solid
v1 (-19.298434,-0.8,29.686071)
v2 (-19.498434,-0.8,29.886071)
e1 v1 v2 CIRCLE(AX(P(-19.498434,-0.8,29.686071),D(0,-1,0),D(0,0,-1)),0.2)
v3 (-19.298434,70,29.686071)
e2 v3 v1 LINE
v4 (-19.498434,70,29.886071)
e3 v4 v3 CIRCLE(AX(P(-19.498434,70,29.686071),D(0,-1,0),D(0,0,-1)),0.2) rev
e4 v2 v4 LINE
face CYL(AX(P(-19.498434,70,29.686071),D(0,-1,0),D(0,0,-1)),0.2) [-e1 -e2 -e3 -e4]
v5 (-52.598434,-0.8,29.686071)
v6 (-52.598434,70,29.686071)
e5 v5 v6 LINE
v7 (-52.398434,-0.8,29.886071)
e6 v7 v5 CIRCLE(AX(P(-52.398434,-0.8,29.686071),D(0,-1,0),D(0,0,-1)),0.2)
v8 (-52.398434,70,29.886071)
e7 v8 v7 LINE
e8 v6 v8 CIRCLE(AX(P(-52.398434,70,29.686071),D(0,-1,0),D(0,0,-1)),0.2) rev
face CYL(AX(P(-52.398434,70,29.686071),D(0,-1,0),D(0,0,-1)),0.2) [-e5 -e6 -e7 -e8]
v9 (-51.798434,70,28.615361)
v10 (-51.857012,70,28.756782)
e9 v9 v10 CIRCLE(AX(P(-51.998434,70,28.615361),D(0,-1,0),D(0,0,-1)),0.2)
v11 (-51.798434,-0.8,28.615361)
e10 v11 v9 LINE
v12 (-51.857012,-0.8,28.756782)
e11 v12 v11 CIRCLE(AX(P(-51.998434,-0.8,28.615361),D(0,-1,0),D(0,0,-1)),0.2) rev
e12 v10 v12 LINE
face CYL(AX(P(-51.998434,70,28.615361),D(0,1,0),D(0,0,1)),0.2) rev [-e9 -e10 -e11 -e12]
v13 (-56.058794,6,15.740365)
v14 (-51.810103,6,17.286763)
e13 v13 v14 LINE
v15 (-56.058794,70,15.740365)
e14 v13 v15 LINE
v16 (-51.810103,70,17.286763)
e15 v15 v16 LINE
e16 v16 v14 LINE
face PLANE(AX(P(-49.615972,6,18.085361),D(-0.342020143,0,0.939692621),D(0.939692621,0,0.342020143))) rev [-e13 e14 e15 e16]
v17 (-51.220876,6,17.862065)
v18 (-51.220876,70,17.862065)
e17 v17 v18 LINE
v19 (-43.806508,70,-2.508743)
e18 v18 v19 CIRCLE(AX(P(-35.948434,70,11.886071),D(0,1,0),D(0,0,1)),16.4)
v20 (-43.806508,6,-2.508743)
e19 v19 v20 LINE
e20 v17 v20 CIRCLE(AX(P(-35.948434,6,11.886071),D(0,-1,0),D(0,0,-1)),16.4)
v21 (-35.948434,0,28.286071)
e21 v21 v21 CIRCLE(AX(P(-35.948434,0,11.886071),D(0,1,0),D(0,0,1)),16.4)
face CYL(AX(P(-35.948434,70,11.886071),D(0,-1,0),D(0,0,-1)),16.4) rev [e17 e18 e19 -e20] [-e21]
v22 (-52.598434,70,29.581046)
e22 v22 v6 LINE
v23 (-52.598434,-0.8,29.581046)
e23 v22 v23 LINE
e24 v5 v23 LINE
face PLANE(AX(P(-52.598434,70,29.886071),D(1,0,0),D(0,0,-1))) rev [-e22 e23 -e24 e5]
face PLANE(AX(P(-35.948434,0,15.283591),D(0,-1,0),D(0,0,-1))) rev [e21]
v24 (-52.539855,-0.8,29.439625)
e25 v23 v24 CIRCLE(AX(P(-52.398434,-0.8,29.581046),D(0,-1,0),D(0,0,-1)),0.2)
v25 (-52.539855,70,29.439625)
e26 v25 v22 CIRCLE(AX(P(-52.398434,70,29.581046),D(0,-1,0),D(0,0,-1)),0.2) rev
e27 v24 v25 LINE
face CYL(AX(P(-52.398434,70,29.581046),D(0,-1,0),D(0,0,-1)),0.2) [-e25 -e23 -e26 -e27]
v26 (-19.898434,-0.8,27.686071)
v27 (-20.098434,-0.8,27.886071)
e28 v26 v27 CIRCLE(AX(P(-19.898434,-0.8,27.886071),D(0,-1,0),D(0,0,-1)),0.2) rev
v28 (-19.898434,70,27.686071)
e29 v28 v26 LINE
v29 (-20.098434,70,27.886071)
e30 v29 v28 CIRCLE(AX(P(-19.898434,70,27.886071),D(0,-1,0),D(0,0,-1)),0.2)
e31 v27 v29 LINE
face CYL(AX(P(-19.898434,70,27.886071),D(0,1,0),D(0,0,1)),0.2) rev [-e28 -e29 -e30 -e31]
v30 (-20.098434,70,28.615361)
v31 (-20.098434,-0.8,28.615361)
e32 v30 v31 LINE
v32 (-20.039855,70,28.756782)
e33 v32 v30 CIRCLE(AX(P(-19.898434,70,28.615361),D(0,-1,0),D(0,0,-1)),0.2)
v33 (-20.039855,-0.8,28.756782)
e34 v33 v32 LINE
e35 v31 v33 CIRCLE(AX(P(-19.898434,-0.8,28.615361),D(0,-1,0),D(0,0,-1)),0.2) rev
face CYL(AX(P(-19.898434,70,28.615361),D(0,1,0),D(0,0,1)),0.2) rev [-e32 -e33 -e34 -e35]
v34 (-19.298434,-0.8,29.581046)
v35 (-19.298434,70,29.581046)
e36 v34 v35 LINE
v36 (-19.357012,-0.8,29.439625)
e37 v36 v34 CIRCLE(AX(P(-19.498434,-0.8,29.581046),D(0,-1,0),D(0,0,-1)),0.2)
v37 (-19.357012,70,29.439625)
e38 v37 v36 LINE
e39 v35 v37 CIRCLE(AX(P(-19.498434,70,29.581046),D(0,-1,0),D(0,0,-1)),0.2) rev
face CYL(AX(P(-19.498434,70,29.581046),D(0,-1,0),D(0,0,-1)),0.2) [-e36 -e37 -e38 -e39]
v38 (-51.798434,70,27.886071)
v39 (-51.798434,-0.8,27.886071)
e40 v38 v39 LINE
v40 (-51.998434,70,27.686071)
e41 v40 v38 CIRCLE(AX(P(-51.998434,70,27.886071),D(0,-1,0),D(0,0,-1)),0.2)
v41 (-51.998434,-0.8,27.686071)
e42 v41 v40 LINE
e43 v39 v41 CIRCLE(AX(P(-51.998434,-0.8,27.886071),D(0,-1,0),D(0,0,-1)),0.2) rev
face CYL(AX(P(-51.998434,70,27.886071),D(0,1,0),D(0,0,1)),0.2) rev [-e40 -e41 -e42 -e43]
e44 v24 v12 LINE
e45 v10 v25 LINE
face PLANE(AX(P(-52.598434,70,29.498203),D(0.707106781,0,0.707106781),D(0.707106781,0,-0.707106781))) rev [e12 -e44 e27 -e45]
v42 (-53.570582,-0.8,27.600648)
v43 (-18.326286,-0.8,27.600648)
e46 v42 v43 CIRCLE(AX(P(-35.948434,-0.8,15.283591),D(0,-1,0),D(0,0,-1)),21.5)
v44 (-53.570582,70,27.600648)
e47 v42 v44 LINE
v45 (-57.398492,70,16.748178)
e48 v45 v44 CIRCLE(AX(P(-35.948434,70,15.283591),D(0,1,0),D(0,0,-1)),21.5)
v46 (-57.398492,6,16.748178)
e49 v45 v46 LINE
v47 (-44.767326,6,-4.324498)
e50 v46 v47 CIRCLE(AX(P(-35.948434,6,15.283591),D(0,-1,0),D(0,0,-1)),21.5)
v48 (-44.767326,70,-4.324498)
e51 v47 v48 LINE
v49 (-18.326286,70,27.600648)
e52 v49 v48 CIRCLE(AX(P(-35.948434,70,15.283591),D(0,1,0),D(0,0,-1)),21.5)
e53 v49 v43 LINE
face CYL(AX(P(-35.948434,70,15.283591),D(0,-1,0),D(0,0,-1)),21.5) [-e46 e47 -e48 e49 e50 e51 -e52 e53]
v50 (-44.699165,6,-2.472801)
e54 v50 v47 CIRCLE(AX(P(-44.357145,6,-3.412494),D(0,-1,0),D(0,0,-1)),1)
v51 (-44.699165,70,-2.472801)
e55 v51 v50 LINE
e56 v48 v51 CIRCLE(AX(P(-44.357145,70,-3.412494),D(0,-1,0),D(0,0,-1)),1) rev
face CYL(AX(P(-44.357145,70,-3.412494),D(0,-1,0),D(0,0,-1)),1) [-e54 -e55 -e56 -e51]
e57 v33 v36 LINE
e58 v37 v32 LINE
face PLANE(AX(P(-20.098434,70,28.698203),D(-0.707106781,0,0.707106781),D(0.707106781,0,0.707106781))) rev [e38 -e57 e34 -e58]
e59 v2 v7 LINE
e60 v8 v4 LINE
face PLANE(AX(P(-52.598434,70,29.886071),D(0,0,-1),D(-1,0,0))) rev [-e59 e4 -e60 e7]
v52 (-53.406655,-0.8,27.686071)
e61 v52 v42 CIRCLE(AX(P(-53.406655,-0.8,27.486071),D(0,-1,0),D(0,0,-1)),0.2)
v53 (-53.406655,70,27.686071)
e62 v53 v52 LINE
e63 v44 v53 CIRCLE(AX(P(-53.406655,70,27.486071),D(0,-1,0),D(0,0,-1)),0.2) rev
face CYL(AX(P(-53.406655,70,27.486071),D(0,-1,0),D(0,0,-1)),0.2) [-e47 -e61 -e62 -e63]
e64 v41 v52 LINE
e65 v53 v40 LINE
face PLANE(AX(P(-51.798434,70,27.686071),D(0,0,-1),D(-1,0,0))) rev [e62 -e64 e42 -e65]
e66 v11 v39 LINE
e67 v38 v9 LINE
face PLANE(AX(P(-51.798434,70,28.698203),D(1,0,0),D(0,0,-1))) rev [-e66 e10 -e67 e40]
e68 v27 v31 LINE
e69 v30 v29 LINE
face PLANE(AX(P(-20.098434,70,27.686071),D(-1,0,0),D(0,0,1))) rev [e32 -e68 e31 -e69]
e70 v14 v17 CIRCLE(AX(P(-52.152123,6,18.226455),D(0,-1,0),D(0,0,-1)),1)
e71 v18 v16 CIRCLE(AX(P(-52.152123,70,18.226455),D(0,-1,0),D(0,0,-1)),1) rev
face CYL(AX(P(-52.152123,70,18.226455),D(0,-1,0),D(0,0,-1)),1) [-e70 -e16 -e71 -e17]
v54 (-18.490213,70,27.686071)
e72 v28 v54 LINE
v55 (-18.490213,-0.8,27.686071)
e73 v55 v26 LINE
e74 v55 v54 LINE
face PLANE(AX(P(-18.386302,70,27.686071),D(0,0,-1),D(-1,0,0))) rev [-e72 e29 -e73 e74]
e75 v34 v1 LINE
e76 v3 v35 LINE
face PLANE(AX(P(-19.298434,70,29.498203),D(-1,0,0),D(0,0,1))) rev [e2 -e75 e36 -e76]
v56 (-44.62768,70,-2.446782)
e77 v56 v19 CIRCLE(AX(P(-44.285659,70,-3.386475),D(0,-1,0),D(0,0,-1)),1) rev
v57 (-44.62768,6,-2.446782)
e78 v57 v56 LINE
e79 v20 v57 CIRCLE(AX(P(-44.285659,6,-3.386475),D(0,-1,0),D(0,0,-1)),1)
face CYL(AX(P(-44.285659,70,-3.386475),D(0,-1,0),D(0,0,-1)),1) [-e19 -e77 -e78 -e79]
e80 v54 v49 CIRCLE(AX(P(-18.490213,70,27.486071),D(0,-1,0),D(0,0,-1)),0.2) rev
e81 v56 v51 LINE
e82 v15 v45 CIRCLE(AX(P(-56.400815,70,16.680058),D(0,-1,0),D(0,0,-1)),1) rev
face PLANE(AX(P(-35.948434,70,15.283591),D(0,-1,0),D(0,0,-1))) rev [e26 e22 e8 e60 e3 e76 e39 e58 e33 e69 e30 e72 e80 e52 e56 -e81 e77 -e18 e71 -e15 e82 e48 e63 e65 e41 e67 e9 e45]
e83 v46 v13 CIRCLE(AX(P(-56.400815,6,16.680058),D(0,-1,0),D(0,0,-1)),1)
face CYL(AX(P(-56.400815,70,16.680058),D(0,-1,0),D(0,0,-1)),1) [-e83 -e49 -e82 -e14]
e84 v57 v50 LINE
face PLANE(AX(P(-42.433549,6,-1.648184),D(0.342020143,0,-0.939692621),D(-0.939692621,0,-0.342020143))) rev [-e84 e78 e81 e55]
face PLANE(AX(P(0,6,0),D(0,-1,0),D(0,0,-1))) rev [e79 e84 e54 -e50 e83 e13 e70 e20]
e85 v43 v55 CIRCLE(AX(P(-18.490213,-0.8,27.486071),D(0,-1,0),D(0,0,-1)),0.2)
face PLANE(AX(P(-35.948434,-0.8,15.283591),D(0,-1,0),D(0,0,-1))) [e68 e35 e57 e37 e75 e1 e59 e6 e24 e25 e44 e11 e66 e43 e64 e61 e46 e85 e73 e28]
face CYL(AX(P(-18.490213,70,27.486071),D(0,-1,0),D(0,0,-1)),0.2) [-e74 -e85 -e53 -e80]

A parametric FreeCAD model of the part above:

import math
import FreeCAD as App
import Part
import Sketcher
from FreeCAD import Vector
Q = App.Units.Quantity


def edges_at(feature, points):
    """Names of the edges that pass closest to the given points."""
    edges = feature.Shape.Edges
    near = lambda p: min(range(len(edges)), key=lambda i: edges[i].distToShape(Part.Vertex(*p))[0])
    return sorted({f"Edge{near(p) + 1}" for p in points})


def add_polygon(sketch, points):
    """Adds a closed chain of lines whose ends are joined by coincident constraints."""
    first, n = sketch.GeometryCount, len(points)
    for a, b in zip(points, points[1:] + points[:1]):
        sketch.addGeometry(Part.LineSegment(App.Vector(*a, 0), App.Vector(*b, 0)), False)
    for i in range(n):
        sketch.addConstraint(Sketcher.Constraint("Coincident", first + i, 2, first + (i + 1) % n, 1))

doc = App.newDocument("Part")
body = doc.addObject("PartDesign::Body", "Body")

sketch1 = body.newObject("Sketcher::SketchObject", "Sketch")
sketch1.AttachmentSupport = (doc.getObject("XZ_Plane"), [""])
sketch1.MapMode = "FlatFace"
sketch1.addGeometry(Part.LineSegment(Vector(-20.1, 27.69, 0), Vector(-18.39, 27.69, 0)), False)
sketch1.addGeometry(Part.ArcOfCircle(Part.Circle(Vector(-35.95, 15.28, 0), Vector(0, 0, 1), 21.5), math.radians(145), math.radians(395)), False)
sketch1.addGeometry(Part.LineSegment(Vector(-53.51, 27.69, 0), Vector(-51.8, 27.69, 0)), False)
sketch1.addGeometry(Part.LineSegment(Vector(-51.8, 27.69, 0), Vector(-51.8, 28.7, 0)), False)
sketch1.addGeometry(Part.LineSegment(Vector(-51.8, 28.7, 0), Vector(-52.6, 29.5, 0)), False)
sketch1.addGeometry(Part.LineSegment(Vector(-52.6, 29.5, 0), Vector(-52.6, 29.89, 0)), False)
sketch1.addGeometry(Part.LineSegment(Vector(-52.6, 29.89, 0), Vector(-19.3, 29.89, 0)), False)
sketch1.addGeometry(Part.LineSegment(Vector(-19.3, 29.89, 0), Vector(-19.3, 29.5, 0)), False)
sketch1.addGeometry(Part.LineSegment(Vector(-19.3, 29.5, 0), Vector(-20.1, 28.7, 0)), False)
sketch1.addGeometry(Part.LineSegment(Vector(-20.1, 28.7, 0), Vector(-20.1, 27.69, 0)), False)
sketch1.addGeometry(Part.Circle(Vector(-35.95, 11.89, 0), Vector(0, 0, 1), 16.4), False)
sketch1.addConstraint(Sketcher.Constraint("Coincident", 0, 2, 1, 2))
sketch1.addConstraint(Sketcher.Constraint("Coincident", 1, 1, 2, 1))
sketch1.addConstraint(Sketcher.Constraint("Coincident", 2, 2, 3, 1))
sketch1.addConstraint(Sketcher.Constraint("Coincident", 3, 2, 4, 1))
sketch1.addConstraint(Sketcher.Constraint("Coincident", 4, 2, 5, 1))
sketch1.addConstraint(Sketcher.Constraint("Coincident", 5, 2, 6, 1))
sketch1.addConstraint(Sketcher.Constraint("Coincident", 6, 2, 7, 1))
sketch1.addConstraint(Sketcher.Constraint("Coincident", 7, 2, 8, 1))
sketch1.addConstraint(Sketcher.Constraint("Coincident", 8, 2, 9, 1))
sketch1.addConstraint(Sketcher.Constraint("Coincident", 9, 2, 0, 1))
sketch1.addConstraint(Sketcher.Constraint("Horizontal", 0))
sketch1.addConstraint(Sketcher.Constraint("Horizontal", 2))
sketch1.addConstraint(Sketcher.Constraint("Vertical", 3))
sketch1.addConstraint(Sketcher.Constraint("Vertical", 5))
sketch1.addConstraint(Sketcher.Constraint("Horizontal", 6))
sketch1.addConstraint(Sketcher.Constraint("Vertical", 7))
sketch1.addConstraint(Sketcher.Constraint("Vertical", 9))
sketch1.addConstraint(Sketcher.Constraint("Perpendicular", 4, 8))
sketch1.addConstraint(Sketcher.Constraint("Horizontal", 0, 2, 1, 1))
sketch1.addConstraint(Sketcher.Constraint("Horizontal", 4, 2, 7, 2))
sketch1.addConstraint(Sketcher.Constraint("Horizontal", 3, 2, 8, 2))
sketch1.addConstraint(Sketcher.Constraint("Vertical", 1, 3, 10, 3))
sketch1.addConstraint(Sketcher.Constraint("Equal", 0, 2))
sketch1.addConstraint(Sketcher.Constraint("Equal", 4, 8))
sketch1.addConstraint(Sketcher.Constraint("Diameter", 10, Q("32.8 mm")))
sketch1.addConstraint(Sketcher.Constraint("Radius", 1, Q("21.5 mm")))
sketch1.addConstraint(Sketcher.Constraint("DistanceX", 6, 1, 6, 2, Q("33.3 mm")))
sketch1.addConstraint(Sketcher.Constraint("DistanceY", 10, 3, 6, 2, Q("18 mm")))
sketch1.addConstraint(Sketcher.Constraint("DistanceY", 10, 3, 0, 2, Q("15.8 mm")))
sketch1.addConstraint(Sketcher.Constraint("DistanceX", 4, 2, 3, 2, Q("0.8 mm")))
sketch1.addConstraint(Sketcher.Constraint("DistanceX", 0, 2, -1, 1, Q("18.386302 mm")))
sketch1.addConstraint(Sketcher.Constraint("DistanceX", 0, 1, 0, 2, Q("1.712132 mm")))
sketch1.addConstraint(Sketcher.Constraint("DistanceY", 3, 1, 3, 2, Q("1.012132 mm")))
sketch1.addConstraint(Sketcher.Constraint("DistanceY", -1, 1, 1, 3, Q("15.283591 mm")))
pad1 = body.newObject("PartDesign::Pad", "Pad")
pad1.Profile = sketch1
pad1.Length = 70
pad1.Reversed = True

sketch2 = body.newObject("Sketcher::SketchObject", "Sketch001")
sketch2.AttachmentSupport = (doc.getObject("XZ_Plane"), [""])
sketch2.MapMode = "FlatFace"
sketch2.AttachmentOffset = App.Placement(Vector(0, 0, 0.8), App.Rotation())
sketch2.addGeometry(Part.LineSegment(Vector(-18.39, 27.69, 0), Vector(-20.1, 27.69, 0)), False)
sketch2.addGeometry(Part.LineSegment(Vector(-20.1, 27.69, 0), Vector(-20.1, 28.7, 0)), False)
sketch2.addGeometry(Part.LineSegment(Vector(-20.1, 28.7, 0), Vector(-19.3, 29.5, 0)), False)
sketch2.addGeometry(Part.LineSegment(Vector(-19.3, 29.5, 0), Vector(-19.3, 29.89, 0)), False)
sketch2.addGeometry(Part.LineSegment(Vector(-19.3, 29.89, 0), Vector(-52.6, 29.89, 0)), False)
sketch2.addGeometry(Part.LineSegment(Vector(-52.6, 29.89, 0), Vector(-52.6, 29.5, 0)), False)
sketch2.addGeometry(Part.LineSegment(Vector(-52.6, 29.5, 0), Vector(-51.8, 28.7, 0)), False)
sketch2.addGeometry(Part.LineSegment(Vector(-51.8, 28.7, 0), Vector(-51.8, 27.69, 0)), False)
sketch2.addGeometry(Part.LineSegment(Vector(-51.8, 27.69, 0), Vector(-53.51, 27.69, 0)), False)
sketch2.addGeometry(Part.ArcOfCircle(Part.Circle(Vector(-35.95, 15.28, 0), Vector(0, 0, 1), 21.5), math.radians(145), math.radians(395)), False)
sketch2.addConstraint(Sketcher.Constraint("Coincident", 0, 2, 1, 1))
sketch2.addConstraint(Sketcher.Constraint("Coincident", 1, 2, 2, 1))
sketch2.addConstraint(Sketcher.Constraint("Coincident", 2, 2, 3, 1))
sketch2.addConstraint(Sketcher.Constraint("Coincident", 3, 2, 4, 1))
sketch2.addConstraint(Sketcher.Constraint("Coincident", 4, 2, 5, 1))
sketch2.addConstraint(Sketcher.Constraint("Coincident", 5, 2, 6, 1))
sketch2.addConstraint(Sketcher.Constraint("Coincident", 6, 2, 7, 1))
sketch2.addConstraint(Sketcher.Constraint("Coincident", 7, 2, 8, 1))
sketch2.addConstraint(Sketcher.Constraint("Coincident", 8, 2, 9, 1))
sketch2.addConstraint(Sketcher.Constraint("Coincident", 9, 2, 0, 1))
sketch2.addConstraint(Sketcher.Constraint("Horizontal", 0))
sketch2.addConstraint(Sketcher.Constraint("Vertical", 1))
sketch2.addConstraint(Sketcher.Constraint("Vertical", 3))
sketch2.addConstraint(Sketcher.Constraint("Horizontal", 4))
sketch2.addConstraint(Sketcher.Constraint("Vertical", 5))
sketch2.addConstraint(Sketcher.Constraint("Vertical", 7))
sketch2.addConstraint(Sketcher.Constraint("Horizontal", 8))
sketch2.addConstraint(Sketcher.Constraint("Perpendicular", 2, 6))
sketch2.addConstraint(Sketcher.Constraint("Horizontal", 2, 2, 5, 2))
sketch2.addConstraint(Sketcher.Constraint("Horizontal", 1, 2, 6, 2))
sketch2.addConstraint(Sketcher.Constraint("Horizontal", 0, 2, 7, 2))
sketch2.addConstraint(Sketcher.Constraint("Equal", 0, 8))
sketch2.addConstraint(Sketcher.Constraint("Equal", 2, 6))
sketch2.addConstraint(Sketcher.Constraint("Radius", 9, Q("21.5 mm")))
sketch2.addConstraint(Sketcher.Constraint("DistanceX", 4, 2, 4, 1, Q("33.3 mm")))
sketch2.addConstraint(Sketcher.Constraint("DistanceX", 1, 2, 2, 2, Q("0.8 mm")))
sketch2.addConstraint(Sketcher.Constraint("DistanceY", 0, 2, 3, 2, Q("2.2 mm")))
sketch2.addConstraint(Sketcher.Constraint("DistanceX", 9, 2, -1, 1, Q("18.386302 mm")))
sketch2.addConstraint(Sketcher.Constraint("DistanceX", 0, 2, 0, 1, Q("1.712132 mm")))
sketch2.addConstraint(Sketcher.Constraint("DistanceY", 1, 1, 1, 2, Q("1.012132 mm")))
sketch2.addConstraint(Sketcher.Constraint("DistanceY", -1, 1, 9, 3, Q("15.283591 mm")))
pad2 = body.newObject("PartDesign::Pad", "Pad001")
pad2.Profile = sketch2
pad2.Length = 0.8
pad2.Reversed = True

sketch3 = body.newObject("Sketcher::SketchObject", "Sketch002")
sketch3.AttachmentSupport = (doc.getObject("XZ_Plane"), [""])
sketch3.MapMode = "FlatFace"
sketch3.AttachmentOffset = App.Placement(Vector(0, 0, -70), App.Rotation())
add_polygon(sketch3, [(-50, 18), (-42, -2), (-57, -7), (-65, 13)])
sketch3.addConstraint(Sketcher.Constraint("Perpendicular", 0, 1))
sketch3.addConstraint(Sketcher.Constraint("Perpendicular", 1, 2))
sketch3.addConstraint(Sketcher.Constraint("Perpendicular", 2, 3))
sketch3.addConstraint(Sketcher.Constraint("Angle", 0, Q("-70 deg")))
sketch3.addConstraint(Sketcher.Constraint("Distance", 0, Q("21 mm")))
sketch3.addConstraint(Sketcher.Constraint("DistanceY", 1, 2, 3, 2, Q("25.186001 mm")))
sketch3.addConstraint(Sketcher.Constraint("DistanceX", 0, 2, -1, 1, Q("42.433549 mm")))
sketch3.addConstraint(Sketcher.Constraint("DistanceY", 1, 2, -1, 1, Q("7.100641 mm")))
pocket1 = body.newObject("PartDesign::Pocket", "Pocket")
pocket1.Profile = sketch3
pocket1.Length = 64
pocket1.Reversed = True
doc.recompute()

fillet = body.newObject("PartDesign::Fillet", "Fillet")
fillet.Base = (pocket1, edges_at(pocket1, [
    (-44.195, 38, -2.289),
    (-51.378, 38, 17.444),
    (-57.448, 38, 15.235),
    (-46.842, 38, -3.253),
]))
fillet.Radius = 1
doc.recompute()

fillet2 = body.newObject("PartDesign::Fillet", "Fillet001")
fillet2.Base = (fillet, edges_at(fillet, [
    (-18.386, 34.6, 27.686),
    (-20.098, 34.6, 27.686),
    (-20.098, 34.6, 28.698),
    (-19.298, 34.6, 29.498),
    (-19.298, 34.6, 29.886),
    (-52.598, 34.6, 29.886),
    (-52.598, 34.6, 29.498),
    (-51.798, 34.6, 28.698),
    (-51.798, 34.6, 27.686),
    (-53.511, 34.6, 27.686),
]))
fillet2.Radius = 0.2

doc.recompute()
